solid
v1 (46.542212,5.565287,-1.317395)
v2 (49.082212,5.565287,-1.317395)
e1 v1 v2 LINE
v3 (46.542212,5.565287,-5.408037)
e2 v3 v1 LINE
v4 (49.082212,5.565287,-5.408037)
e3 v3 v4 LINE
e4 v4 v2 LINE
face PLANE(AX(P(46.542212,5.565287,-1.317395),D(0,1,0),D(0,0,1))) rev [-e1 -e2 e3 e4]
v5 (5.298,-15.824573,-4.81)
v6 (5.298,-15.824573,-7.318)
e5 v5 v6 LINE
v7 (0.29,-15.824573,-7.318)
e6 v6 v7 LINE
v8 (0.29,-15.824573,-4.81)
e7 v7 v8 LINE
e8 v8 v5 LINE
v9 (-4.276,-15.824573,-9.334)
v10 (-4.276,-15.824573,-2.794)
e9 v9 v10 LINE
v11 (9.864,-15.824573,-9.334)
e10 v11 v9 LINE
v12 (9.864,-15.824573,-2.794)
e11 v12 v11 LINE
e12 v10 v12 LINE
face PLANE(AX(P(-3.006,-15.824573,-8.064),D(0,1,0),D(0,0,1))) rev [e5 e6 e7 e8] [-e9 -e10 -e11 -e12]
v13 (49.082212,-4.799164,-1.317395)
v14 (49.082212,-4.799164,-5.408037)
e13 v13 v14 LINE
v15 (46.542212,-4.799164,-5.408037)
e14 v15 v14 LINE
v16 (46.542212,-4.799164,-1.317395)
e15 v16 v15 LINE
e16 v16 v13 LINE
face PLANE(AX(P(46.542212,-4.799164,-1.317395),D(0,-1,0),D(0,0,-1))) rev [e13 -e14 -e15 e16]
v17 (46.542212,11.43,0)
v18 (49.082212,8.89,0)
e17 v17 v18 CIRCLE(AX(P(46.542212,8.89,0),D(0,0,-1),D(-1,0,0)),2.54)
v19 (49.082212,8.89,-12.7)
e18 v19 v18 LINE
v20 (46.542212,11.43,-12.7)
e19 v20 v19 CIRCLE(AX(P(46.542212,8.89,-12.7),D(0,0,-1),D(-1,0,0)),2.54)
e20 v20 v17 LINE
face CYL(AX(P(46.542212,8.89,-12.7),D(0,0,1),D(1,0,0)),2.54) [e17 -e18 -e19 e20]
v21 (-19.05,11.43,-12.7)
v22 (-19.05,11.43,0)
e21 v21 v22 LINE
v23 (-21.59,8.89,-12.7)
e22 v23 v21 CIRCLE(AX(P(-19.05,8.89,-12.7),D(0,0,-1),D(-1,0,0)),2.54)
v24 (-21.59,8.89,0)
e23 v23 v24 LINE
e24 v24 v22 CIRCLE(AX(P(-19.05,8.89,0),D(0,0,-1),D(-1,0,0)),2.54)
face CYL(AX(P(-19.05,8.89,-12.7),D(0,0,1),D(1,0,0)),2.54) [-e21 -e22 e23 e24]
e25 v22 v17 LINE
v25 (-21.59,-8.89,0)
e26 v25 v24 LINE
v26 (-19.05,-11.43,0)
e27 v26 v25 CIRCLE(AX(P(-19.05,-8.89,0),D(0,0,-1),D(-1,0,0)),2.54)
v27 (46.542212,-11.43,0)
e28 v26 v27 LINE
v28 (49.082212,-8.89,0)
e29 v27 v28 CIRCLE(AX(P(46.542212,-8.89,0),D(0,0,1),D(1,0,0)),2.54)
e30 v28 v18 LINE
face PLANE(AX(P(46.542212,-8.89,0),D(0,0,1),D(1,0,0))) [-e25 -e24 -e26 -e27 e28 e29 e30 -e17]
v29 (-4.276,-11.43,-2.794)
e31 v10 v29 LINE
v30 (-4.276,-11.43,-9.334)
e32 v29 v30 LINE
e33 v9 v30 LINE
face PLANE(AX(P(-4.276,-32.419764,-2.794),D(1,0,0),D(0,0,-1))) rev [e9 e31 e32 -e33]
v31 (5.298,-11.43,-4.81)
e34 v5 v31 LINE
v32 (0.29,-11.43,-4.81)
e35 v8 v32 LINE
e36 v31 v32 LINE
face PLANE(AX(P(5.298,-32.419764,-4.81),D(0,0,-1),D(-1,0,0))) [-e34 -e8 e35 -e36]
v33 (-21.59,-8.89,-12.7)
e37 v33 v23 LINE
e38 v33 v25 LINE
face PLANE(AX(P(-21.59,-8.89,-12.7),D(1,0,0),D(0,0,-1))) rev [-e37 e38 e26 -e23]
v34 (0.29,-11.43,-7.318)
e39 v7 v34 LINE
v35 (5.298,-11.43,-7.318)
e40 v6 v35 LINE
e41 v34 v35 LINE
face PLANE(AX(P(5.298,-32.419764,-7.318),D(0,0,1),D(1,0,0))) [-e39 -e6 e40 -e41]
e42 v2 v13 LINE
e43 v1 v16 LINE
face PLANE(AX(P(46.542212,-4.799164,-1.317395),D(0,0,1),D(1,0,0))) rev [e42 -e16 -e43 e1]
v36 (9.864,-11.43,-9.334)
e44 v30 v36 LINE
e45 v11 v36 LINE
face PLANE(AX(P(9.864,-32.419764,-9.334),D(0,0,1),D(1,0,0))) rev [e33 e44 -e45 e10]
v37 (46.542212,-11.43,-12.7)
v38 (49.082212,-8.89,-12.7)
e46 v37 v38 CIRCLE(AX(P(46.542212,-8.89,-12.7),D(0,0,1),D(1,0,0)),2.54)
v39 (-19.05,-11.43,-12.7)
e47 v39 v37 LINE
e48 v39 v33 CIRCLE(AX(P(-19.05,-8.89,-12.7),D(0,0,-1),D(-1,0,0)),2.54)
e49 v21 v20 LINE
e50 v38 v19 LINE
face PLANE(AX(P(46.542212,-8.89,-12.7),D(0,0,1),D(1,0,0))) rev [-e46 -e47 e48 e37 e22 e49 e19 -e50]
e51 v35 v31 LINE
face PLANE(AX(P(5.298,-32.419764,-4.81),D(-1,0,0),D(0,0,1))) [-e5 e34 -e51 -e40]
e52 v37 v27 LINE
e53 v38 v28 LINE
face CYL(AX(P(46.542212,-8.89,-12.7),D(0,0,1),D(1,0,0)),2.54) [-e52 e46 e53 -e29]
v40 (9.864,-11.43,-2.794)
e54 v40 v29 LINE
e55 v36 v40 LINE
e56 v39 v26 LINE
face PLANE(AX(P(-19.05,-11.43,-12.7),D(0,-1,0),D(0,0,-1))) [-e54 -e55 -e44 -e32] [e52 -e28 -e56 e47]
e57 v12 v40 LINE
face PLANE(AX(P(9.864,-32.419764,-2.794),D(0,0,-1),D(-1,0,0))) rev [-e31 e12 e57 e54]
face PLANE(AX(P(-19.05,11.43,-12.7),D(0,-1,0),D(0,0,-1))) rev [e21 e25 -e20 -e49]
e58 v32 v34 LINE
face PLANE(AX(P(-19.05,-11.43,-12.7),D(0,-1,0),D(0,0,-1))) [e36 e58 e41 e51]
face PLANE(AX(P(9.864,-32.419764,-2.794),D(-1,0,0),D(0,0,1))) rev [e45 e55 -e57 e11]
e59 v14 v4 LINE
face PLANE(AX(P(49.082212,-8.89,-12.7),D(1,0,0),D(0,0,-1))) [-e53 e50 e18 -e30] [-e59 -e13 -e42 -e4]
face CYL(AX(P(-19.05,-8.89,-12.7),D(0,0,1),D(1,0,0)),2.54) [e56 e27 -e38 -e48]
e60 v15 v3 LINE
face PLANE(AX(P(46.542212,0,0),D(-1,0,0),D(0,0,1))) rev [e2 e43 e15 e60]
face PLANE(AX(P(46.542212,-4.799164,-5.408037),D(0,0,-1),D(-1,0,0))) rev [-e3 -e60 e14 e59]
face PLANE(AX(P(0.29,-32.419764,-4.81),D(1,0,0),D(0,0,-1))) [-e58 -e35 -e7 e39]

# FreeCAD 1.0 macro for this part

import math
import FreeCAD as App
import Part
import Sketcher
from FreeCAD import Vector
Q = App.Units.Quantity


def add_polygon(sketch, points):
    """Adds a closed chain of lines whose ends are joined by coincident constraints."""
    first, n = sketch.GeometryCount, len(points)
    for a, b in zip(points, points[1:] + points[:1]):
        sketch.addGeometry(Part.LineSegment(App.Vector(*a, 0), App.Vector(*b, 0)), False)
    for i in range(n):
        sketch.addConstraint(Sketcher.Constraint("Coincident", first + i, 2, first + (i + 1) % n, 1))

doc = App.newDocument("Part")
body = doc.addObject("PartDesign::Body", "Body")

# Sketch on XY plane
sketch1 = doc.addObject("Sketcher::SketchObject", "Sketch")
body.addObject(sketch1)
sketch1.AttachmentSupport = (doc.XY_Plane, [""])
sketch1.MapMode = "FlatFace"
sketch1.addGeometry([
    Part.LineSegment(Vector(46.542212, 11.43, 0), Vector(-19.05, 11.43, 0)),  # 0
    Part.ArcOfCircle(Part.Circle(Vector(-19.05, 8.89, 0), Vector(0, 0, 1), 2.54), math.radians(90), math.radians(180)),  # 1
    Part.LineSegment(Vector(-21.59, 8.89, 0), Vector(-21.59, -8.89, 0)),  # 2
    Part.ArcOfCircle(Part.Circle(Vector(-19.05, -8.89, 0), Vector(0, 0, 1), 2.54), math.radians(-180), math.radians(-90)),  # 3
    Part.LineSegment(Vector(-19.05, -11.43, 0), Vector(46.542212, -11.43, 0)),  # 4
    Part.ArcOfCircle(Part.Circle(Vector(46.542212, -8.89, 0), Vector(0, 0, 1), 2.54), math.radians(-90), math.radians(0)),  # 5
    Part.LineSegment(Vector(49.082212, -8.89, 0), Vector(49.082212, 8.89, 0)),  # 6
    Part.ArcOfCircle(Part.Circle(Vector(46.542212, 8.89, 0), Vector(0, 0, 1), 2.54), math.radians(0), math.radians(90)),  # 7
], False)
sketch1.addConstraint([
    Sketcher.Constraint("Tangent", 0, 2, 1, 1),
    Sketcher.Constraint("Tangent", 1, 2, 2, 1),
    Sketcher.Constraint("Tangent", 2, 2, 3, 1),
    Sketcher.Constraint("Tangent", 3, 2, 4, 1),
    Sketcher.Constraint("Tangent", 4, 2, 5, 1),
    Sketcher.Constraint("Tangent", 5, 2, 6, 1),
    Sketcher.Constraint("Tangent", 6, 2, 7, 1),
    Sketcher.Constraint("Tangent", 7, 2, 0, 1),
    Sketcher.Constraint("Horizontal", 0),
    Sketcher.Constraint("Vertical", 2),
    Sketcher.Constraint("Horizontal", 4),
    Sketcher.Constraint("Vertical", 6),
    Sketcher.Constraint("Equal", 1, 3),
    Sketcher.Constraint("Equal", 3, 5),
    Sketcher.Constraint("Equal", 5, 7),
    Sketcher.Constraint("Radius", 1, Q("0.1 in")),
    Sketcher.Constraint("DistanceY", 2, 2, 2, 1, Q("0.7 in")),
    Sketcher.Constraint("DistanceX", 1, 3, -1, 1, Q("0.75 in")),
    Sketcher.Constraint("DistanceY", -1, 1, 1, 3, Q("0.35 in")),
    Sketcher.Constraint("DistanceX", 0, 2, 0, 1, 65.592212),
])
pad1 = doc.addObject("PartDesign::Pad", "Pad")
body.addObject(pad1)
pad1.Profile = sketch1
pad1.Length = Q("0.5 in")
pad1.Reversed = True

# Sketch on YZ plane
sketch2 = doc.addObject("Sketcher::SketchObject", "Sketch001")
body.addObject(sketch2)
sketch2.AttachmentSupport = (doc.YZ_Plane, [""])
sketch2.MapMode = "FlatFace"
sketch2.AttachmentOffset = App.Placement(Vector(0, 0, 49.082212), App.Rotation())
add_polygon(sketch2, [(5.565287, -1.317395), (-4.799164, -1.317395), (-4.799164, -5.408037), (5.565287, -5.408037)])  # lines 0-3
sketch2.addConstraint([
    Sketcher.Constraint("Horizontal", 0),
    Sketcher.Constraint("Vertical", 1),
    Sketcher.Constraint("Horizontal", 2),
    Sketcher.Constraint("Vertical", 3),
    Sketcher.Constraint("DistanceX", 0, 2, 0, 1, 10.364451),
    Sketcher.Constraint("DistanceY", 1, 2, 1, 1, 4.090641),
    Sketcher.Constraint("DistanceX", 0, 2, -1, 1, 4.799164),
    Sketcher.Constraint("DistanceY", 0, 2, -1, 1, 1.317395),
])
pocket1 = doc.addObject("PartDesign::Pocket", "Pocket")
body.addObject(pocket1)
pocket1.Profile = sketch2
pocket1.Length = Q("0.1 in")

# Sketch on XZ plane
sketch3 = doc.addObject("Sketcher::SketchObject", "Sketch002")
body.addObject(sketch3)
sketch3.AttachmentSupport = (doc.XZ_Plane, [""])
sketch3.MapMode = "FlatFace"
sketch3.AttachmentOffset = App.Placement(Vector(0, 0, 0.45 * 25.4), App.Rotation())
add_polygon(sketch3, [(-4.276, -2.794), (-4.276, -9.334), (9.864, -9.334), (9.864, -2.794)])  # lines 0-3
add_polygon(sketch3, [(5.298, -7.318), (0.29, -7.318), (0.29, -4.81), (5.298, -4.81)])  # lines 4-7
sketch3.addConstraint([
    Sketcher.Constraint("Vertical", 0),
    Sketcher.Constraint("Horizontal", 1),
    Sketcher.Constraint("Vertical", 2),
    Sketcher.Constraint("Horizontal", 3),
    Sketcher.Constraint("Horizontal", 4),
    Sketcher.Constraint("Vertical", 5),
    Sketcher.Constraint("Horizontal", 6),
    Sketcher.Constraint("Vertical", 7),
    Sketcher.Constraint("DistanceY", 2, 2, -1, 1, Q("0.11 in")),
    Sketcher.Constraint("DistanceX", 1, 1, 1, 2, 14.14),
    Sketcher.Constraint("DistanceX", 4, 2, 4, 1, 5.008),
    Sketcher.Constraint("DistanceY", 0, 2, 0, 1, 6.54),
    Sketcher.Constraint("DistanceY", 5, 1, 5, 2, 2.508),
    Sketcher.Constraint("DistanceX", 0, 2, -1, 1, 4.276),
    Sketcher.Constraint("DistanceX", -1, 1, 4, 2, 0.29),
    Sketcher.Constraint("DistanceY", 4, 2, -1, 1, 7.318),
])
pad2 = doc.addObject("PartDesign::Pad", "Pad001")
body.addObject(pad2)
pad2.Profile = sketch3
pad2.Length = 4.394573

doc.recompute()
